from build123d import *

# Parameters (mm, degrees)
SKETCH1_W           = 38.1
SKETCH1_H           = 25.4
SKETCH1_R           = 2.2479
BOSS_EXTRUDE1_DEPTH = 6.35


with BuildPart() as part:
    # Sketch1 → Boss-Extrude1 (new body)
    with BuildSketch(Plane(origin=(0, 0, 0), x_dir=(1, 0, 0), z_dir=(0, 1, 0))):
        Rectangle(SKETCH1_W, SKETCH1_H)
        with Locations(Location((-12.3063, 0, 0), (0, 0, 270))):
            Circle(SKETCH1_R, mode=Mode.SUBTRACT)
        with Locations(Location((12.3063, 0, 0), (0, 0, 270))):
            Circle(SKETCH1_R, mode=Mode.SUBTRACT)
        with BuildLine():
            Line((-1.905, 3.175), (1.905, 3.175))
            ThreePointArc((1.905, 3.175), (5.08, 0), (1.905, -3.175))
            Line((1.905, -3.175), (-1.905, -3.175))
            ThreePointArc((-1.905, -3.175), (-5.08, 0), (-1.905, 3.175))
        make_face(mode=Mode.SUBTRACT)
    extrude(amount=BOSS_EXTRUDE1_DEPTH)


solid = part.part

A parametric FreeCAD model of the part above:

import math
import FreeCAD as App
import Part
import Sketcher
from FreeCAD import Vector
Q = App.Units.Quantity


def add_polygon(sketch, points):
    """Adds a closed chain of lines whose ends are joined by coincident constraints."""
    first, n = sketch.GeometryCount, len(points)
    for a, b in zip(points, points[1:] + points[:1]):
        sketch.addGeometry(Part.LineSegment(App.Vector(*a, 0), App.Vector(*b, 0)), False)
    for i in range(n):
        sketch.addConstraint(Sketcher.Constraint("Coincident", first + i, 2, first + (i + 1) % n, 1))

doc = App.newDocument("Part")
body = doc.addObject("PartDesign::Body", "Body")

# Sketch on XZ plane
sketch1 = doc.addObject("Sketcher::SketchObject", "Sketch")
body.addObject(sketch1)
sketch1.AttachmentSupport = (doc.XZ_Plane, [""])
sketch1.MapMode = "FlatFace"
add_polygon(sketch1, [(-19.1, -12.7), (-19.1, 12.7), (19.1, 12.7), (19.1, -12.7)])  # lines 0-3
sketch1.addGeometry(Part.Circle(Vector(-12.3, 0, 0), Vector(0, 0, 1), 2.2), False)  # 4
sketch1.addGeometry(Part.ArcOfCircle(Part.Circle(Vector(-1.9, 0, 0), Vector(0, 0, 1), 3.2), math.radians(90), math.radians(270)), False)  # 5
sketch1.addGeometry(Part.LineSegment(Vector(-1.9, -3.2, 0), Vector(1.9, -3.2, 0)), False)  # 6
sketch1.addGeometry(Part.ArcOfCircle(Part.Circle(Vector(1.9, 0, 0), Vector(0, 0, 1), 3.2), math.radians(-90), math.radians(90)), False)  # 7
sketch1.addGeometry(Part.LineSegment(Vector(1.9, 3.2, 0), Vector(-1.9, 3.2, 0)), False)  # 8
sketch1.addGeometry(Part.Circle(Vector(12.3, 0, 0), Vector(0, 0, 1), 2.2), False)  # 9
sketch1.addConstraint([
    Sketcher.Constraint("Tangent", 5, 2, 6, 1),
    Sketcher.Constraint("Tangent", 6, 2, 7, 1),
    Sketcher.Constraint("Tangent", 7, 2, 8, 1),
    Sketcher.Constraint("Tangent", 8, 2, 5, 1),
    Sketcher.Constraint("Vertical", 0),
    Sketcher.Constraint("Horizontal", 1),
    Sketcher.Constraint("Vertical", 2),
    Sketcher.Constraint("Horizontal", 3),
    Sketcher.Constraint("Horizontal", 6),
    Sketcher.Constraint("Horizontal", 8),
    Sketcher.Constraint("Equal", 4, 9),
    Sketcher.Constraint("Symmetric", 5, 3, 7, 3, -1, 1),
    Sketcher.Constraint("Symmetric", 4, 3, 9, 3, -1, 1),
    Sketcher.Constraint("Symmetric", 0, 2, 2, 2, -1, 1),
    Sketcher.Constraint("PointOnObject", 4, 3, -1),
    Sketcher.Constraint("DistanceY", 0, 1, 0, 2, Q("1 in")),
    Sketcher.Constraint("Diameter", 4, Q("0.177 in")),
    Sketcher.Constraint("DistanceX", 1, 1, 1, 2, Q("1.5 in")),
    Sketcher.Constraint("Radius", 5, Q("0.125 in")),
    Sketcher.Constraint("DistanceX", 6, 1, 6, 2, Q("0.15 in")),
    Sketcher.Constraint("DistanceX", 4, 3, 9, 3, Q("0.969 in")),
])
pad1 = doc.addObject("PartDesign::Pad", "Pad")
body.addObject(pad1)
pad1.Profile = sketch1
pad1.Length = Q("0.25 in")
pad1.Reversed = True

doc.recompute()
